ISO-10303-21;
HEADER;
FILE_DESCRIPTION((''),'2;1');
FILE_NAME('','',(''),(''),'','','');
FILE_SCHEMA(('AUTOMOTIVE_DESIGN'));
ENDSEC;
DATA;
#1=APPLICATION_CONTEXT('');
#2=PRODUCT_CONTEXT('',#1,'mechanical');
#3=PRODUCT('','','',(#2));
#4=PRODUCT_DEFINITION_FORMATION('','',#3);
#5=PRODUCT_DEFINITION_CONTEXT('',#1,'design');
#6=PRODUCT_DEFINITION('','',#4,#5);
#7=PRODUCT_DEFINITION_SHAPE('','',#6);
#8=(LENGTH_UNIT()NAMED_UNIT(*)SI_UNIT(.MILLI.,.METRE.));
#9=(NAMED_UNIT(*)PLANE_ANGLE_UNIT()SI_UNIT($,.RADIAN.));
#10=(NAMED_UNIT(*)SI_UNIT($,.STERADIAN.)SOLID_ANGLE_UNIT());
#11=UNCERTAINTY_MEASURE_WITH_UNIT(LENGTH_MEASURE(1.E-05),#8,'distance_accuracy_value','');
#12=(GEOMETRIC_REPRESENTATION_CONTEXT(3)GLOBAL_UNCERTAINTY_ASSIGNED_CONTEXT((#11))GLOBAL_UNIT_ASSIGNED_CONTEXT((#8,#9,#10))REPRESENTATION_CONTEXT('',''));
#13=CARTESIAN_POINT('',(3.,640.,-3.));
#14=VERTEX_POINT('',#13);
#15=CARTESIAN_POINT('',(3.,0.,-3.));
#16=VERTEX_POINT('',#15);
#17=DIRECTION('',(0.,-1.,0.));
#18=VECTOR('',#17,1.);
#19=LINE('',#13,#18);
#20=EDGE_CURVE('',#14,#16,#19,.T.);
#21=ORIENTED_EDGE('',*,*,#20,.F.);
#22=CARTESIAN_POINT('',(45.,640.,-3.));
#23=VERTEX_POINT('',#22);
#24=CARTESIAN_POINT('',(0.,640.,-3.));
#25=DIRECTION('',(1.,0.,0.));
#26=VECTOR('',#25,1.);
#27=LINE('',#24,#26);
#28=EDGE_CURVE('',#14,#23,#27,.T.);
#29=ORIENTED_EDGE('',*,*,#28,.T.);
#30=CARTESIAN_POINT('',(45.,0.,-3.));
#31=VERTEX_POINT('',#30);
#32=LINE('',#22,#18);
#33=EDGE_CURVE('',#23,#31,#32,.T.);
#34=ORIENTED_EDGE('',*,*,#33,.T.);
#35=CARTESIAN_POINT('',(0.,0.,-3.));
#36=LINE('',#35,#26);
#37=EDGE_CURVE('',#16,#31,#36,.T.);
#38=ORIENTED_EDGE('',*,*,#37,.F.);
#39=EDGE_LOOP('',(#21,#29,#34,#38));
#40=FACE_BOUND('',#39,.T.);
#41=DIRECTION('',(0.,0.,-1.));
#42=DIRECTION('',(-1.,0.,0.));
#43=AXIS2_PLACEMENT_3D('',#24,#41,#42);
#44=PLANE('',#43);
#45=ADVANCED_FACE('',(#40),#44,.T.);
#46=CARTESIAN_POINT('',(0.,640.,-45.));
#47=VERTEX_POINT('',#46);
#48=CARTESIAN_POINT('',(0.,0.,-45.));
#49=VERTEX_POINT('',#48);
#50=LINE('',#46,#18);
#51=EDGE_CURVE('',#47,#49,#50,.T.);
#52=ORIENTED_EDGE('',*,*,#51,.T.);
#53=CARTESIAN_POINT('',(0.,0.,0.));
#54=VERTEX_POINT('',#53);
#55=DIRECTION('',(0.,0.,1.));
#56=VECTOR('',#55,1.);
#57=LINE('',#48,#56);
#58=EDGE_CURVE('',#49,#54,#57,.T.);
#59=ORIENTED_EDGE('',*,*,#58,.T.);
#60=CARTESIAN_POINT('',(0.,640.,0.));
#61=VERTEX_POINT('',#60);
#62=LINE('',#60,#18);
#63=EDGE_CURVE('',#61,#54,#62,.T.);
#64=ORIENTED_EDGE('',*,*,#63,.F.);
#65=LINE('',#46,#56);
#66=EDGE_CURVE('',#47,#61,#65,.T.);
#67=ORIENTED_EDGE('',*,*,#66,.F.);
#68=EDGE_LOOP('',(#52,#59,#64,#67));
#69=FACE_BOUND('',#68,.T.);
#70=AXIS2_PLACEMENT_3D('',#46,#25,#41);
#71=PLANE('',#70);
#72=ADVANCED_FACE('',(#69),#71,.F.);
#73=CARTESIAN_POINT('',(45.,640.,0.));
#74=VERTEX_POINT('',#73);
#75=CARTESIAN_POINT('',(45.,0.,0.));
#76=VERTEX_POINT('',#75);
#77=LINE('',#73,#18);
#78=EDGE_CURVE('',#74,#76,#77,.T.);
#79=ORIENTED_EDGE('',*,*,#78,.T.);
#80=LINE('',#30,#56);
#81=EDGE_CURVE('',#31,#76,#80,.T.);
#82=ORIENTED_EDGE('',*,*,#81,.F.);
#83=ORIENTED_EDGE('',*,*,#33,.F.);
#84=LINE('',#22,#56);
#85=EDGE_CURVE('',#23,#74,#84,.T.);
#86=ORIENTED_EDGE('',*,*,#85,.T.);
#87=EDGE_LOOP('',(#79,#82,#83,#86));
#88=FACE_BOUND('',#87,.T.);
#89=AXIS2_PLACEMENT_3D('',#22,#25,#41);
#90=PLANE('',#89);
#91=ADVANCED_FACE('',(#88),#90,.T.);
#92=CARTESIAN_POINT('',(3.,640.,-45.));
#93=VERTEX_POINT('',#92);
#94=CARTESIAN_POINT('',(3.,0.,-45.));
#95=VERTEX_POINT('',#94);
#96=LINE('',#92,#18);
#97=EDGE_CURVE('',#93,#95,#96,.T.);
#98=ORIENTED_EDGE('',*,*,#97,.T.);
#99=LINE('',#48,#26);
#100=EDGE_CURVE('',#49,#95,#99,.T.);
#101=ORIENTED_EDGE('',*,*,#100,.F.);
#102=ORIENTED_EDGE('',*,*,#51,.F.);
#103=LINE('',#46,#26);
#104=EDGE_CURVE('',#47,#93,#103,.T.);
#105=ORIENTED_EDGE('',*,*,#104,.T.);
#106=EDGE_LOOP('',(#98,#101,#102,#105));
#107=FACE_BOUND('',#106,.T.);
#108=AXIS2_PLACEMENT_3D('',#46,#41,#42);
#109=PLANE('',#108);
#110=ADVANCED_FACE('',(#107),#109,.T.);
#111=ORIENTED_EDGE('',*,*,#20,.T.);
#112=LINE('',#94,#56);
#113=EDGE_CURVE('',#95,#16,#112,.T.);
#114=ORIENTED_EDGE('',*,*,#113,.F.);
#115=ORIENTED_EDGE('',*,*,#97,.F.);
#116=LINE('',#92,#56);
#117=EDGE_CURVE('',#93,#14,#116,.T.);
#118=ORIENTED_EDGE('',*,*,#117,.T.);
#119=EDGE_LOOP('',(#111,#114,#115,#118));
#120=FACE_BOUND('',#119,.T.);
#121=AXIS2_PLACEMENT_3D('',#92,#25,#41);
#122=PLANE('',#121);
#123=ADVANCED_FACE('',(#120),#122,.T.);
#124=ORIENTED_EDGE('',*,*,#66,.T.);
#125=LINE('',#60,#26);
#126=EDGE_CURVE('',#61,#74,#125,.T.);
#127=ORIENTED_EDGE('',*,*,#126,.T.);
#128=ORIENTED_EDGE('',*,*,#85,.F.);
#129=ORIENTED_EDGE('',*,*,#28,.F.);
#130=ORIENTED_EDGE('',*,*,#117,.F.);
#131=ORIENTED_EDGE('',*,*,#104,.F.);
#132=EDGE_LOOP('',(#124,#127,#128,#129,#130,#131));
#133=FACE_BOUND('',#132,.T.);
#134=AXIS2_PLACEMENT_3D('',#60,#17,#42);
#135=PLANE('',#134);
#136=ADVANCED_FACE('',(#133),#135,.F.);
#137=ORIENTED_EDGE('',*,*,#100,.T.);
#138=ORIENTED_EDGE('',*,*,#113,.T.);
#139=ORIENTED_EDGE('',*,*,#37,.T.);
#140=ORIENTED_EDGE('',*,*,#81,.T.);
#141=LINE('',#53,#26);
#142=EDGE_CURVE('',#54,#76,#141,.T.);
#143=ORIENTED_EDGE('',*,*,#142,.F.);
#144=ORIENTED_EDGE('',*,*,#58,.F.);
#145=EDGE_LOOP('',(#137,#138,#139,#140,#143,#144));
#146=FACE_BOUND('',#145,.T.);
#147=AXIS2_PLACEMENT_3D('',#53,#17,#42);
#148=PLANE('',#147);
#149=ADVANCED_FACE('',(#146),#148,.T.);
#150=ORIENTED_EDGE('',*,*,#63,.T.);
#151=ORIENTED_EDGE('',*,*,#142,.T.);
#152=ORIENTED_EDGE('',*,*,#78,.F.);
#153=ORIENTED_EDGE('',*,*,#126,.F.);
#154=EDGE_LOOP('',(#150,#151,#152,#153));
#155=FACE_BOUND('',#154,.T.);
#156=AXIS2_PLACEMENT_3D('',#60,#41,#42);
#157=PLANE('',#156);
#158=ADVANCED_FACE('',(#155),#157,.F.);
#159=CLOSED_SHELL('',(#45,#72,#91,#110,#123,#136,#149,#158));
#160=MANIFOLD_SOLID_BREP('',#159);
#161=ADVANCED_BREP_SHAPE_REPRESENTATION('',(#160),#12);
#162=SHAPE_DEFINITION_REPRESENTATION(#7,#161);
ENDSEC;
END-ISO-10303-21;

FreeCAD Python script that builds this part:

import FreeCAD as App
import Part
import Sketcher
from FreeCAD import Vector


def add_polygon(sketch, points):
    """Adds a closed chain of lines whose ends are joined by coincident constraints."""
    first, n = sketch.GeometryCount, len(points)
    for a, b in zip(points, points[1:] + points[:1]):
        sketch.addGeometry(Part.LineSegment(App.Vector(*a, 0), App.Vector(*b, 0)), False)
    for i in range(n):
        sketch.addConstraint(Sketcher.Constraint("Coincident", first + i, 2, first + (i + 1) % n, 1))

doc = App.newDocument("Part")
body = doc.addObject("PartDesign::Body", "Body")

# Sketch on XZ plane
sketch1 = doc.addObject("Sketcher::SketchObject", "Sketch")
body.addObject(sketch1)
sketch1.AttachmentSupport = (doc.XZ_Plane, [""])
sketch1.MapMode = "FlatFace"
add_polygon(sketch1, [(0, -45), (0, 0), (45, 0), (45, -3), (3, -3), (3, -45)])  # lines 0-5
sketch1.addConstraint(Sketcher.Constraint("Vertical", 0))
sketch1.addConstraint(Sketcher.Constraint("Horizontal", 1))
sketch1.addConstraint(Sketcher.Constraint("Vertical", 2))
sketch1.addConstraint(Sketcher.Constraint("Horizontal", 3))
sketch1.addConstraint(Sketcher.Constraint("Vertical", 4))
sketch1.addConstraint(Sketcher.Constraint("Horizontal", 5))
sketch1.addConstraint(Sketcher.Constraint("Coincident", 0, 2, -1, 1))
sketch1.addConstraint(Sketcher.Constraint("Equal", 1, 0))
sketch1.addConstraint(Sketcher.Constraint("Equal", 5, 2))
sketch1.addConstraint(Sketcher.Constraint("DistanceX", 1, 1, 1, 2, 45.0))
sketch1.addConstraint(Sketcher.Constraint("DistanceX", 3, 2, 3, 1, 42.0))
pad1 = doc.addObject("PartDesign::Pad", "Pad")
body.addObject(pad1)
pad1.Profile = sketch1
pad1.Length = 640
pad1.Reversed = True

doc.recompute()
